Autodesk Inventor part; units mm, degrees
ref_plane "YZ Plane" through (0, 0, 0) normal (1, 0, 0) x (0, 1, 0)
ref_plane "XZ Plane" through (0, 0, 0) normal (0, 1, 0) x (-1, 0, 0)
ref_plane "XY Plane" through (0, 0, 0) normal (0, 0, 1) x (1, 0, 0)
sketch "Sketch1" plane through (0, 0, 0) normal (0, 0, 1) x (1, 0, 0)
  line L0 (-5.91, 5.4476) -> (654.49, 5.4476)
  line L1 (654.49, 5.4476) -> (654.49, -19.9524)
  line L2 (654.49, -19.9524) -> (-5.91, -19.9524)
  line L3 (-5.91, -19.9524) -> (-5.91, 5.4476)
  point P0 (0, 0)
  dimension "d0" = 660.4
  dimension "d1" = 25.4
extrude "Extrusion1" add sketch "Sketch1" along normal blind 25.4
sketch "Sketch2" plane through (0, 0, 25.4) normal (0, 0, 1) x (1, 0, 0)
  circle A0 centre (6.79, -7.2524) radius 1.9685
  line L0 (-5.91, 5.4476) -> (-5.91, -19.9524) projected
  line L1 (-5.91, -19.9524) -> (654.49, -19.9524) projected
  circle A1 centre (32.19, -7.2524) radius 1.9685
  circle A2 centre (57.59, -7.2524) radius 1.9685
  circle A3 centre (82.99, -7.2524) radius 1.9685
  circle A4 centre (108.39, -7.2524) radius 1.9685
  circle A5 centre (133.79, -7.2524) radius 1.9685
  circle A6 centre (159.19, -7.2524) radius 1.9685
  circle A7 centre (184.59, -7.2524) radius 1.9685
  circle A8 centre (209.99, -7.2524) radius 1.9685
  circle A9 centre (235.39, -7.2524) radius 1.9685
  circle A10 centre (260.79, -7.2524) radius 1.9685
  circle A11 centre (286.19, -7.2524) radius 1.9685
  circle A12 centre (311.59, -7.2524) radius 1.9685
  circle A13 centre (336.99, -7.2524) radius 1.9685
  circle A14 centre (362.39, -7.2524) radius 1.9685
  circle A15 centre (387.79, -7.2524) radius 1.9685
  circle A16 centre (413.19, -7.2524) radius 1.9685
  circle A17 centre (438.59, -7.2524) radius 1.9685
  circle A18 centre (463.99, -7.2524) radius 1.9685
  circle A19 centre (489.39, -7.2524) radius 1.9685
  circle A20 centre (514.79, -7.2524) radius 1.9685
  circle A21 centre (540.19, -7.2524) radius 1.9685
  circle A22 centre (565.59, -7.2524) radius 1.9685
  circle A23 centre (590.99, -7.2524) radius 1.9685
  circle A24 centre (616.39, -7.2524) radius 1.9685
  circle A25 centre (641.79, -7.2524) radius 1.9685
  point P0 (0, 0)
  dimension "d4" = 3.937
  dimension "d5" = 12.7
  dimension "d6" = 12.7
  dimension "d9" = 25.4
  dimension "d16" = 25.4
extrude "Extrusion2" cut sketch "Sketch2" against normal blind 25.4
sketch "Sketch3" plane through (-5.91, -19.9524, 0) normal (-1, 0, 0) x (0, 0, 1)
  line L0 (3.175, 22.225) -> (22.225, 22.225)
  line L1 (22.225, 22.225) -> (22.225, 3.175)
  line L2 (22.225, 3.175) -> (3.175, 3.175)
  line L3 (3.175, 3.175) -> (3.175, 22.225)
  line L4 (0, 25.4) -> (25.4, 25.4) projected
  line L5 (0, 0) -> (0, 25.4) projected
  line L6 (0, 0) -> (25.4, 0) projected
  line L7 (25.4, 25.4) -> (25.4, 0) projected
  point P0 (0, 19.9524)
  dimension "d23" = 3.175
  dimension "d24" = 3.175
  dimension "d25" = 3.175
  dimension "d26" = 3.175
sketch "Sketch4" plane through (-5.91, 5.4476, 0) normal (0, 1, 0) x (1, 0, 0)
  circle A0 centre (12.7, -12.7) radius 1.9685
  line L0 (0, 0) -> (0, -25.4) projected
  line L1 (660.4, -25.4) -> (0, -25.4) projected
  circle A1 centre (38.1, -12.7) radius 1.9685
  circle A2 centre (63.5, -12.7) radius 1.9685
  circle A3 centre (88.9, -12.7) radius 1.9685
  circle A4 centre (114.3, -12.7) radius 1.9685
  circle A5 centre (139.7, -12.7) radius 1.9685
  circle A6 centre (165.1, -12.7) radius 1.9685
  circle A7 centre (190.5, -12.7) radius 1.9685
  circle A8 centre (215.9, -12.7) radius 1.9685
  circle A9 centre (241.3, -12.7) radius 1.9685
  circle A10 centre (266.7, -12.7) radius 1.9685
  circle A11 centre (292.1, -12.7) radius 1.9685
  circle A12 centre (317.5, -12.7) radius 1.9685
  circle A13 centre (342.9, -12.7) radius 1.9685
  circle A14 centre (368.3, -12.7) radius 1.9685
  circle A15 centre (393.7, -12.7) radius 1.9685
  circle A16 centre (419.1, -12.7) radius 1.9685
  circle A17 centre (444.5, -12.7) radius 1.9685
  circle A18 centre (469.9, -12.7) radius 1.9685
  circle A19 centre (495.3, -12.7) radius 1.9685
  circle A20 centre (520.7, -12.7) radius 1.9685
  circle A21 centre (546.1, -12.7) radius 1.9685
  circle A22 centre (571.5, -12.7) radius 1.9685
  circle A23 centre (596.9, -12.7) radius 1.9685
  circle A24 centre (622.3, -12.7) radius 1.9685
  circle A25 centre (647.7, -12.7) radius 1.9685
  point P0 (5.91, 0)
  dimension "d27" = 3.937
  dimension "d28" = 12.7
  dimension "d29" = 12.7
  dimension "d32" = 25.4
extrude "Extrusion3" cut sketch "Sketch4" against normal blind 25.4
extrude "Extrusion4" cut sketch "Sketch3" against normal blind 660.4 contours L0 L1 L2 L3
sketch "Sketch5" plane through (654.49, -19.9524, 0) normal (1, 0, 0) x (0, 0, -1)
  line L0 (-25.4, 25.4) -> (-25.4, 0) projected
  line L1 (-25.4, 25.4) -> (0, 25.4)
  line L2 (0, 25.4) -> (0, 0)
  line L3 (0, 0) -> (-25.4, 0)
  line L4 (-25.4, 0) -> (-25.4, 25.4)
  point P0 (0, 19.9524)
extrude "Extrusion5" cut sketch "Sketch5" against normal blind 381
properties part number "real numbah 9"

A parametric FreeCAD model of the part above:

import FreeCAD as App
import Part
import Sketcher
from FreeCAD import Vector
Q = App.Units.Quantity

doc = App.newDocument("Part")
body = doc.addObject("PartDesign::Body", "Body")

sketch1 = doc.addObject("Sketcher::SketchObject", "Sketch")
body.addObject(sketch1)
sketch1.AttachmentSupport = (doc.XY_Plane, [""])
sketch1.MapMode = "FlatFace"
sketch1.addGeometry(Part.LineSegment(Vector(654, 5, 0), Vector(-6, 5, 0)), False)
sketch1.addGeometry(Part.LineSegment(Vector(-6, 5, 0), Vector(-6, -20, 0)), False)
sketch1.addGeometry(Part.LineSegment(Vector(-6, -20, 0), Vector(654, -20, 0)), False)
sketch1.addGeometry(Part.LineSegment(Vector(654, -20, 0), Vector(654, 5, 0)), False)
sketch1.addConstraint(Sketcher.Constraint("Coincident", 0, 2, 1, 1))
sketch1.addConstraint(Sketcher.Constraint("Coincident", 1, 2, 2, 1))
sketch1.addConstraint(Sketcher.Constraint("Coincident", 2, 2, 3, 1))
sketch1.addConstraint(Sketcher.Constraint("Coincident", 3, 2, 0, 1))
sketch1.addConstraint(Sketcher.Constraint("Horizontal", 0))
sketch1.addConstraint(Sketcher.Constraint("Vertical", 1))
sketch1.addConstraint(Sketcher.Constraint("Horizontal", 2))
sketch1.addConstraint(Sketcher.Constraint("Vertical", 3))
sketch1.addConstraint(Sketcher.Constraint("DistanceX", 0, 2, 0, 1, Q("26 in")))
sketch1.addConstraint(Sketcher.Constraint("DistanceY", 1, 2, 1, 1, Q("1 in")))
sketch1.addConstraint(Sketcher.Constraint("DistanceX", 0, 2, -1, 1, 5.91))
sketch1.addConstraint(Sketcher.Constraint("DistanceY", -1, 1, 0, 2, 5.4476))
pad1 = doc.addObject("PartDesign::Pad", "Pad")
body.addObject(pad1)
pad1.Profile = sketch1
pad1.Length = Q("1 in")

sketch2 = doc.addObject("Sketcher::SketchObject", "Sketch001")
body.addObject(sketch2)
sketch2.AttachmentSupport = (doc.XY_Plane, [""])
sketch2.MapMode = "FlatFace"
sketch2.AttachmentOffset = App.Placement(Vector(0, 0, 1 * 25.4), App.Rotation())
sketch2.addGeometry(Part.Circle(Vector(6.8, -7.3, 0), Vector(0, 0, 1), 2), False)
sketch2.addGeometry(Part.Circle(Vector(32.2, -7.3, 0), Vector(0, 0, 1), 2), False)
sketch2.addGeometry(Part.Circle(Vector(57.6, -7.3, 0), Vector(0, 0, 1), 2), False)
sketch2.addGeometry(Part.Circle(Vector(83, -7.3, 0), Vector(0, 0, 1), 2), False)
sketch2.addGeometry(Part.Circle(Vector(108.4, -7.3, 0), Vector(0, 0, 1), 2), False)
sketch2.addGeometry(Part.Circle(Vector(133.8, -7.3, 0), Vector(0, 0, 1), 2), False)
sketch2.addGeometry(Part.Circle(Vector(159.2, -7.3, 0), Vector(0, 0, 1), 2), False)
sketch2.addGeometry(Part.Circle(Vector(184.6, -7.3, 0), Vector(0, 0, 1), 2), False)
sketch2.addGeometry(Part.Circle(Vector(210, -7.3, 0), Vector(0, 0, 1), 2), False)
sketch2.addGeometry(Part.Circle(Vector(235.4, -7.3, 0), Vector(0, 0, 1), 2), False)
sketch2.addGeometry(Part.Circle(Vector(260.8, -7.3, 0), Vector(0, 0, 1), 2), False)
sketch2.addGeometry(Part.Circle(Vector(286.2, -7.3, 0), Vector(0, 0, 1), 2), False)
sketch2.addGeometry(Part.Circle(Vector(311.6, -7.3, 0), Vector(0, 0, 1), 2), False)
sketch2.addGeometry(Part.Circle(Vector(337, -7.3, 0), Vector(0, 0, 1), 2), False)
sketch2.addGeometry(Part.Circle(Vector(362.4, -7.3, 0), Vector(0, 0, 1), 2), False)
sketch2.addGeometry(Part.Circle(Vector(387.8, -7.3, 0), Vector(0, 0, 1), 2), False)
sketch2.addGeometry(Part.Circle(Vector(413.2, -7.3, 0), Vector(0, 0, 1), 2), False)
sketch2.addGeometry(Part.Circle(Vector(438.6, -7.3, 0), Vector(0, 0, 1), 2), False)
sketch2.addGeometry(Part.Circle(Vector(464, -7.3, 0), Vector(0, 0, 1), 2), False)
sketch2.addGeometry(Part.Circle(Vector(489.4, -7.3, 0), Vector(0, 0, 1), 2), False)
sketch2.addGeometry(Part.Circle(Vector(514.8, -7.3, 0), Vector(0, 0, 1), 2), False)
sketch2.addGeometry(Part.Circle(Vector(540.2, -7.3, 0), Vector(0, 0, 1), 2), False)
sketch2.addGeometry(Part.Circle(Vector(565.6, -7.3, 0), Vector(0, 0, 1), 2), False)
sketch2.addGeometry(Part.Circle(Vector(591, -7.3, 0), Vector(0, 0, 1), 2), False)
sketch2.addGeometry(Part.Circle(Vector(616.4, -7.3, 0), Vector(0, 0, 1), 2), False)
sketch2.addGeometry(Part.Circle(Vector(641.8, -7.3, 0), Vector(0, 0, 1), 2), False)
sketch2.addConstraint(Sketcher.Constraint("Equal", 0, 1))
sketch2.addConstraint(Sketcher.Constraint("Equal", 1, 2))
sketch2.addConstraint(Sketcher.Constraint("Equal", 2, 3))
sketch2.addConstraint(Sketcher.Constraint("Equal", 3, 4))
sketch2.addConstraint(Sketcher.Constraint("Equal", 4, 5))
sketch2.addConstraint(Sketcher.Constraint("Equal", 5, 6))
sketch2.addConstraint(Sketcher.Constraint("Equal", 6, 7))
sketch2.addConstraint(Sketcher.Constraint("Equal", 7, 8))
sketch2.addConstraint(Sketcher.Constraint("Equal", 8, 9))
sketch2.addConstraint(Sketcher.Constraint("Equal", 9, 10))
sketch2.addConstraint(Sketcher.Constraint("Equal", 10, 11))
sketch2.addConstraint(Sketcher.Constraint("Equal", 11, 12))
sketch2.addConstraint(Sketcher.Constraint("Equal", 12, 13))
sketch2.addConstraint(Sketcher.Constraint("Equal", 13, 14))
sketch2.addConstraint(Sketcher.Constraint("Equal", 14, 15))
sketch2.addConstraint(Sketcher.Constraint("Equal", 15, 16))
sketch2.addConstraint(Sketcher.Constraint("Equal", 16, 17))
sketch2.addConstraint(Sketcher.Constraint("Equal", 17, 18))
sketch2.addConstraint(Sketcher.Constraint("Equal", 18, 19))
sketch2.addConstraint(Sketcher.Constraint("Equal", 19, 20))
sketch2.addConstraint(Sketcher.Constraint("Equal", 20, 21))
sketch2.addConstraint(Sketcher.Constraint("Equal", 21, 22))
sketch2.addConstraint(Sketcher.Constraint("Equal", 22, 23))
sketch2.addConstraint(Sketcher.Constraint("Equal", 23, 24))
sketch2.addConstraint(Sketcher.Constraint("Equal", 24, 25))
sketch2.addConstraint(Sketcher.Constraint("Horizontal", 0, 3, 1, 3))
sketch2.addConstraint(Sketcher.Constraint("Horizontal", 1, 3, 2, 3))
sketch2.addConstraint(Sketcher.Constraint("Horizontal", 2, 3, 3, 3))
sketch2.addConstraint(Sketcher.Constraint("Horizontal", 3, 3, 4, 3))
sketch2.addConstraint(Sketcher.Constraint("Horizontal", 4, 3, 5, 3))
sketch2.addConstraint(Sketcher.Constraint("Horizontal", 5, 3, 6, 3))
sketch2.addConstraint(Sketcher.Constraint("Horizontal", 6, 3, 7, 3))
sketch2.addConstraint(Sketcher.Constraint("Horizontal", 7, 3, 8, 3))
sketch2.addConstraint(Sketcher.Constraint("Horizontal", 8, 3, 9, 3))
sketch2.addConstraint(Sketcher.Constraint("Horizontal", 9, 3, 10, 3))
sketch2.addConstraint(Sketcher.Constraint("Horizontal", 10, 3, 11, 3))
sketch2.addConstraint(Sketcher.Constraint("Horizontal", 11, 3, 12, 3))
sketch2.addConstraint(Sketcher.Constraint("Horizontal", 12, 3, 13, 3))
sketch2.addConstraint(Sketcher.Constraint("Horizontal", 13, 3, 14, 3))
sketch2.addConstraint(Sketcher.Constraint("Horizontal", 14, 3, 15, 3))
sketch2.addConstraint(Sketcher.Constraint("Horizontal", 15, 3, 16, 3))
sketch2.addConstraint(Sketcher.Constraint("Horizontal", 16, 3, 17, 3))
sketch2.addConstraint(Sketcher.Constraint("Horizontal", 17, 3, 18, 3))
sketch2.addConstraint(Sketcher.Constraint("Horizontal", 18, 3, 19, 3))
sketch2.addConstraint(Sketcher.Constraint("Horizontal", 19, 3, 20, 3))
sketch2.addConstraint(Sketcher.Constraint("Horizontal", 20, 3, 21, 3))
sketch2.addConstraint(Sketcher.Constraint("Horizontal", 21, 3, 22, 3))
sketch2.addConstraint(Sketcher.Constraint("Horizontal", 22, 3, 23, 3))
sketch2.addConstraint(Sketcher.Constraint("Horizontal", 23, 3, 24, 3))
sketch2.addConstraint(Sketcher.Constraint("Horizontal", 24, 3, 25, 3))
sketch2.addConstraint(Sketcher.Constraint("Diameter", 0, Q("0.155 in")))
sketch2.addConstraint(Sketcher.Constraint("DistanceX", 0, 3, 1, 3, Q("1 in")))
sketch2.addConstraint(Sketcher.Constraint("DistanceX", 1, 3, 2, 3, Q("1 in")))
sketch2.addConstraint(Sketcher.Constraint("DistanceX", 2, 3, 3, 3, Q("1 in")))
sketch2.addConstraint(Sketcher.Constraint("DistanceX", 3, 3, 4, 3, Q("1 in")))
sketch2.addConstraint(Sketcher.Constraint("DistanceX", 4, 3, 5, 3, Q("1 in")))
sketch2.addConstraint(Sketcher.Constraint("DistanceX", 5, 3, 6, 3, Q("1 in")))
sketch2.addConstraint(Sketcher.Constraint("DistanceX", 6, 3, 7, 3, Q("1 in")))
sketch2.addConstraint(Sketcher.Constraint("DistanceX", 7, 3, 8, 3, Q("1 in")))
sketch2.addConstraint(Sketcher.Constraint("DistanceX", 8, 3, 9, 3, Q("1 in")))
sketch2.addConstraint(Sketcher.Constraint("DistanceX", 9, 3, 10, 3, Q("1 in")))
sketch2.addConstraint(Sketcher.Constraint("DistanceX", 10, 3, 11, 3, Q("1 in")))
sketch2.addConstraint(Sketcher.Constraint("DistanceX", 11, 3, 12, 3, Q("1 in")))
sketch2.addConstraint(Sketcher.Constraint("DistanceX", 12, 3, 13, 3, Q("1 in")))
sketch2.addConstraint(Sketcher.Constraint("DistanceX", 13, 3, 14, 3, Q("1 in")))
sketch2.addConstraint(Sketcher.Constraint("DistanceX", 14, 3, 15, 3, Q("1 in")))
sketch2.addConstraint(Sketcher.Constraint("DistanceX", 15, 3, 16, 3, Q("1 in")))
sketch2.addConstraint(Sketcher.Constraint("DistanceX", 16, 3, 17, 3, Q("1 in")))
sketch2.addConstraint(Sketcher.Constraint("DistanceX", 17, 3, 18, 3, Q("1 in")))
sketch2.addConstraint(Sketcher.Constraint("DistanceX", 18, 3, 19, 3, Q("1 in")))
sketch2.addConstraint(Sketcher.Constraint("DistanceX", 19, 3, 20, 3, Q("1 in")))
sketch2.addConstraint(Sketcher.Constraint("DistanceX", 20, 3, 21, 3, Q("1 in")))
sketch2.addConstraint(Sketcher.Constraint("DistanceX", 21, 3, 22, 3, Q("1 in")))
sketch2.addConstraint(Sketcher.Constraint("DistanceX", 22, 3, 23, 3, Q("1 in")))
sketch2.addConstraint(Sketcher.Constraint("DistanceX", 23, 3, 24, 3, Q("1 in")))
sketch2.addConstraint(Sketcher.Constraint("DistanceX", 24, 3, 25, 3, Q("1 in")))
sketch2.addConstraint(Sketcher.Constraint("DistanceX", -1, 1, 0, 3, 6.79))
sketch2.addConstraint(Sketcher.Constraint("DistanceY", 0, 3, -1, 1, 7.2524))
pocket1 = doc.addObject("PartDesign::Pocket", "Pocket")
body.addObject(pocket1)
pocket1.Profile = sketch2
pocket1.Length = Q("1 in")

sketch3 = doc.addObject("Sketcher::SketchObject", "Sketch002")
body.addObject(sketch3)
sketch3.AttachmentSupport = (doc.XZ_Plane, [""])
sketch3.MapMode = "FlatFace"
sketch3.AttachmentOffset = App.Placement(Vector(0, 0, -5.4476), App.Rotation())
sketch3.addGeometry(Part.Circle(Vector(6.8, 12.7, 0), Vector(0, 0, 1), 2), False)
sketch3.addGeometry(Part.Circle(Vector(32.2, 12.7, 0), Vector(0, 0, 1), 2), False)
sketch3.addGeometry(Part.Circle(Vector(57.6, 12.7, 0), Vector(0, 0, 1), 2), False)
sketch3.addGeometry(Part.Circle(Vector(83, 12.7, 0), Vector(0, 0, 1), 2), False)
sketch3.addGeometry(Part.Circle(Vector(108.4, 12.7, 0), Vector(0, 0, 1), 2), False)
sketch3.addGeometry(Part.Circle(Vector(133.8, 12.7, 0), Vector(0, 0, 1), 2), False)
sketch3.addGeometry(Part.Circle(Vector(159.2, 12.7, 0), Vector(0, 0, 1), 2), False)
sketch3.addGeometry(Part.Circle(Vector(184.6, 12.7, 0), Vector(0, 0, 1), 2), False)
sketch3.addGeometry(Part.Circle(Vector(210, 12.7, 0), Vector(0, 0, 1), 2), False)
sketch3.addGeometry(Part.Circle(Vector(235.4, 12.7, 0), Vector(0, 0, 1), 2), False)
sketch3.addGeometry(Part.Circle(Vector(260.8, 12.7, 0), Vector(0, 0, 1), 2), False)
sketch3.addGeometry(Part.Circle(Vector(286.2, 12.7, 0), Vector(0, 0, 1), 2), False)
sketch3.addGeometry(Part.Circle(Vector(311.6, 12.7, 0), Vector(0, 0, 1), 2), False)
sketch3.addGeometry(Part.Circle(Vector(337, 12.7, 0), Vector(0, 0, 1), 2), False)
sketch3.addGeometry(Part.Circle(Vector(362.4, 12.7, 0), Vector(0, 0, 1), 2), False)
sketch3.addGeometry(Part.Circle(Vector(387.8, 12.7, 0), Vector(0, 0, 1), 2), False)
sketch3.addGeometry(Part.Circle(Vector(413.2, 12.7, 0), Vector(0, 0, 1), 2), False)
sketch3.addGeometry(Part.Circle(Vector(438.6, 12.7, 0), Vector(0, 0, 1), 2), False)
sketch3.addGeometry(Part.Circle(Vector(464, 12.7, 0), Vector(0, 0, 1), 2), False)
sketch3.addGeometry(Part.Circle(Vector(489.4, 12.7, 0), Vector(0, 0, 1), 2), False)
sketch3.addGeometry(Part.Circle(Vector(514.8, 12.7, 0), Vector(0, 0, 1), 2), False)
sketch3.addGeometry(Part.Circle(Vector(540.2, 12.7, 0), Vector(0, 0, 1), 2), False)
sketch3.addGeometry(Part.Circle(Vector(565.6, 12.7, 0), Vector(0, 0, 1), 2), False)
sketch3.addGeometry(Part.Circle(Vector(591, 12.7, 0), Vector(0, 0, 1), 2), False)
sketch3.addGeometry(Part.Circle(Vector(616.4, 12.7, 0), Vector(0, 0, 1), 2), False)
sketch3.addGeometry(Part.Circle(Vector(641.8, 12.7, 0), Vector(0, 0, 1), 2), False)
sketch3.addConstraint(Sketcher.Constraint("Equal", 0, 1))
sketch3.addConstraint(Sketcher.Constraint("Equal", 1, 2))
sketch3.addConstraint(Sketcher.Constraint("Equal", 2, 3))
sketch3.addConstraint(Sketcher.Constraint("Equal", 3, 4))
sketch3.addConstraint(Sketcher.Constraint("Equal", 4, 5))
sketch3.addConstraint(Sketcher.Constraint("Equal", 5, 6))
sketch3.addConstraint(Sketcher.Constraint("Equal", 6, 7))
sketch3.addConstraint(Sketcher.Constraint("Equal", 7, 8))
sketch3.addConstraint(Sketcher.Constraint("Equal", 8, 9))
sketch3.addConstraint(Sketcher.Constraint("Equal", 9, 10))
sketch3.addConstraint(Sketcher.Constraint("Equal", 10, 11))
sketch3.addConstraint(Sketcher.Constraint("Equal", 11, 12))
sketch3.addConstraint(Sketcher.Constraint("Equal", 12, 13))
sketch3.addConstraint(Sketcher.Constraint("Equal", 13, 14))
sketch3.addConstraint(Sketcher.Constraint("Equal", 14, 15))
sketch3.addConstraint(Sketcher.Constraint("Equal", 15, 16))
sketch3.addConstraint(Sketcher.Constraint("Equal", 16, 17))
sketch3.addConstraint(Sketcher.Constraint("Equal", 17, 18))
sketch3.addConstraint(Sketcher.Constraint("Equal", 18, 19))
sketch3.addConstraint(Sketcher.Constraint("Equal", 19, 20))
sketch3.addConstraint(Sketcher.Constraint("Equal", 20, 21))
sketch3.addConstraint(Sketcher.Constraint("Equal", 21, 22))
sketch3.addConstraint(Sketcher.Constraint("Equal", 22, 23))
sketch3.addConstraint(Sketcher.Constraint("Equal", 23, 24))
sketch3.addConstraint(Sketcher.Constraint("Equal", 24, 25))
sketch3.addConstraint(Sketcher.Constraint("Horizontal", 0, 3, 1, 3))
sketch3.addConstraint(Sketcher.Constraint("Horizontal", 1, 3, 2, 3))
sketch3.addConstraint(Sketcher.Constraint("Horizontal", 2, 3, 3, 3))
sketch3.addConstraint(Sketcher.Constraint("Horizontal", 3, 3, 4, 3))
sketch3.addConstraint(Sketcher.Constraint("Horizontal", 4, 3, 5, 3))
sketch3.addConstraint(Sketcher.Constraint("Horizontal", 5, 3, 6, 3))
sketch3.addConstraint(Sketcher.Constraint("Horizontal", 6, 3, 7, 3))
sketch3.addConstraint(Sketcher.Constraint("Horizontal", 7, 3, 8, 3))
sketch3.addConstraint(Sketcher.Constraint("Horizontal", 8, 3, 9, 3))
sketch3.addConstraint(Sketcher.Constraint("Horizontal", 9, 3, 10, 3))
sketch3.addConstraint(Sketcher.Constraint("Horizontal", 10, 3, 11, 3))
sketch3.addConstraint(Sketcher.Constraint("Horizontal", 11, 3, 12, 3))
sketch3.addConstraint(Sketcher.Constraint("Horizontal", 12, 3, 13, 3))
sketch3.addConstraint(Sketcher.Constraint("Horizontal", 13, 3, 14, 3))
sketch3.addConstraint(Sketcher.Constraint("Horizontal", 14, 3, 15, 3))
sketch3.addConstraint(Sketcher.Constraint("Horizontal", 15, 3, 16, 3))
sketch3.addConstraint(Sketcher.Constraint("Horizontal", 16, 3, 17, 3))
sketch3.addConstraint(Sketcher.Constraint("Horizontal", 17, 3, 18, 3))
sketch3.addConstraint(Sketcher.Constraint("Horizontal", 18, 3, 19, 3))
sketch3.addConstraint(Sketcher.Constraint("Horizontal", 19, 3, 20, 3))
sketch3.addConstraint(Sketcher.Constraint("Horizontal", 20, 3, 21, 3))
sketch3.addConstraint(Sketcher.Constraint("Horizontal", 21, 3, 22, 3))
sketch3.addConstraint(Sketcher.Constraint("Horizontal", 22, 3, 23, 3))
sketch3.addConstraint(Sketcher.Constraint("Horizontal", 23, 3, 24, 3))
sketch3.addConstraint(Sketcher.Constraint("Horizontal", 24, 3, 25, 3))
sketch3.addConstraint(Sketcher.Constraint("Diameter", 0, Q("0.155 in")))
sketch3.addConstraint(Sketcher.Constraint("DistanceX", 0, 3, 1, 3, Q("1 in")))
sketch3.addConstraint(Sketcher.Constraint("DistanceX", 1, 3, 2, 3, Q("1 in")))
sketch3.addConstraint(Sketcher.Constraint("DistanceX", 2, 3, 3, 3, Q("1 in")))
sketch3.addConstraint(Sketcher.Constraint("DistanceX", 3, 3, 4, 3, Q("1 in")))
sketch3.addConstraint(Sketcher.Constraint("DistanceX", 4, 3, 5, 3, Q("1 in")))
sketch3.addConstraint(Sketcher.Constraint("DistanceX", 5, 3, 6, 3, Q("1 in")))
sketch3.addConstraint(Sketcher.Constraint("DistanceX", 6, 3, 7, 3, Q("1 in")))
sketch3.addConstraint(Sketcher.Constraint("DistanceX", 7, 3, 8, 3, Q("1 in")))
sketch3.addConstraint(Sketcher.Constraint("DistanceX", 8, 3, 9, 3, Q("1 in")))
sketch3.addConstraint(Sketcher.Constraint("DistanceX", 9, 3, 10, 3, Q("1 in")))
sketch3.addConstraint(Sketcher.Constraint("DistanceX", 10, 3, 11, 3, Q("1 in")))
sketch3.addConstraint(Sketcher.Constraint("DistanceX", 11, 3, 12, 3, Q("1 in")))
sketch3.addConstraint(Sketcher.Constraint("DistanceX", 12, 3, 13, 3, Q("1 in")))
sketch3.addConstraint(Sketcher.Constraint("DistanceX", 13, 3, 14, 3, Q("1 in")))
sketch3.addConstraint(Sketcher.Constraint("DistanceX", 14, 3, 15, 3, Q("1 in")))
sketch3.addConstraint(Sketcher.Constraint("DistanceX", 15, 3, 16, 3, Q("1 in")))
sketch3.addConstraint(Sketcher.Constraint("DistanceX", 16, 3, 17, 3, Q("1 in")))
sketch3.addConstraint(Sketcher.Constraint("DistanceX", 17, 3, 18, 3, Q("1 in")))
sketch3.addConstraint(Sketcher.Constraint("DistanceX", 18, 3, 19, 3, Q("1 in")))
sketch3.addConstraint(Sketcher.Constraint("DistanceX", 19, 3, 20, 3, Q("1 in")))
sketch3.addConstraint(Sketcher.Constraint("DistanceX", 20, 3, 21, 3, Q("1 in")))
sketch3.addConstraint(Sketcher.Constraint("DistanceX", 21, 3, 22, 3, Q("1 in")))
sketch3.addConstraint(Sketcher.Constraint("DistanceX", 22, 3, 23, 3, Q("1 in")))
sketch3.addConstraint(Sketcher.Constraint("DistanceX", 23, 3, 24, 3, Q("1 in")))
sketch3.addConstraint(Sketcher.Constraint("DistanceX", 24, 3, 25, 3, Q("1 in")))
sketch3.addConstraint(Sketcher.Constraint("DistanceY", -1, 1, 0, 3, Q("0.5 in")))
sketch3.addConstraint(Sketcher.Constraint("DistanceX", -1, 1, 0, 3, 6.79))
pocket2 = doc.addObject("PartDesign::Pocket", "Pocket001")
body.addObject(pocket2)
pocket2.Profile = sketch3
pocket2.Length = Q("1 in")
pocket2.Reversed = True

sketch4 = doc.addObject("Sketcher::SketchObject", "Sketch003")
body.addObject(sketch4)
sketch4.AttachmentSupport = (doc.YZ_Plane, [""])
sketch4.MapMode = "FlatFace"
sketch4.AttachmentOffset = App.Placement(Vector(0, 0, -5.91), App.Rotation())
sketch4.addGeometry(Part.LineSegment(Vector(2, 22, 0), Vector(2, 3, 0)), False)
sketch4.addGeometry(Part.LineSegment(Vector(2, 3, 0), Vector(-17, 3, 0)), False)
sketch4.addGeometry(Part.LineSegment(Vector(-17, 3, 0), Vector(-17, 22, 0)), False)
sketch4.addGeometry(Part.LineSegment(Vector(-17, 22, 0), Vector(2, 22, 0)), False)
sketch4.addConstraint(Sketcher.Constraint("Coincident", 0, 2, 1, 1))
sketch4.addConstraint(Sketcher.Constraint("Coincident", 1, 2, 2, 1))
sketch4.addConstraint(Sketcher.Constraint("Coincident", 2, 2, 3, 1))
sketch4.addConstraint(Sketcher.Constraint("Coincident", 3, 2, 0, 1))
sketch4.addConstraint(Sketcher.Constraint("Vertical", 0))
sketch4.addConstraint(Sketcher.Constraint("Horizontal", 1))
sketch4.addConstraint(Sketcher.Constraint("Vertical", 2))
sketch4.addConstraint(Sketcher.Constraint("Horizontal", 3))
sketch4.addConstraint(Sketcher.Constraint("Equal", 3, 0))
sketch4.addConstraint(Sketcher.Constraint("DistanceY", -1, 1, 0, 2, Q("0.125 in")))
sketch4.addConstraint(Sketcher.Constraint("DistanceX", 1, 2, 1, 1, Q("0.75 in")))
sketch4.addConstraint(Sketcher.Constraint("DistanceX", -1, 1, 0, 2, 2.2726))
pocket3 = doc.addObject("PartDesign::Pocket", "Pocket002")
body.addObject(pocket3)
pocket3.Profile = sketch4
pocket3.Length = Q("26 in")
pocket3.Reversed = True

sketch5 = doc.addObject("Sketcher::SketchObject", "Sketch004")
body.addObject(sketch5)
sketch5.AttachmentSupport = (doc.YZ_Plane, [""])
sketch5.MapMode = "FlatFace"
sketch5.AttachmentOffset = App.Placement(Vector(0, 0, 654.49), App.Rotation())
sketch5.addGeometry(Part.LineSegment(Vector(5, 0, 0), Vector(5, 25, 0)), False)
sketch5.addGeometry(Part.LineSegment(Vector(5, 25, 0), Vector(-20, 25, 0)), False)
sketch5.addGeometry(Part.LineSegment(Vector(-20, 25, 0), Vector(-20, 0, 0)), False)
sketch5.addGeometry(Part.LineSegment(Vector(-20, 0, 0), Vector(5, 0, 0)), False)
sketch5.addConstraint(Sketcher.Constraint("Coincident", 0, 2, 1, 1))
sketch5.addConstraint(Sketcher.Constraint("Coincident", 1, 2, 2, 1))
sketch5.addConstraint(Sketcher.Constraint("Coincident", 2, 2, 3, 1))
sketch5.addConstraint(Sketcher.Constraint("Coincident", 3, 2, 0, 1))
sketch5.addConstraint(Sketcher.Constraint("Vertical", 0))
sketch5.addConstraint(Sketcher.Constraint("Horizontal", 1))
sketch5.addConstraint(Sketcher.Constraint("Vertical", 2))
sketch5.addConstraint(Sketcher.Constraint("Horizontal", 3))
sketch5.addConstraint(Sketcher.Constraint("PointOnObject", 2, 2, -1))
sketch5.addConstraint(Sketcher.Constraint("Equal", 3, 0))
sketch5.addConstraint(Sketcher.Constraint("DistanceX", 1, 2, 1, 1, Q("1 in")))
sketch5.addConstraint(Sketcher.Constraint("DistanceX", -1, 1, 0, 2, 5.4476))
pocket4 = doc.addObject("PartDesign::Pocket", "Pocket003")
body.addObject(pocket4)
pocket4.Profile = sketch5
pocket4.Length = Q("15 in")

doc.recompute()
